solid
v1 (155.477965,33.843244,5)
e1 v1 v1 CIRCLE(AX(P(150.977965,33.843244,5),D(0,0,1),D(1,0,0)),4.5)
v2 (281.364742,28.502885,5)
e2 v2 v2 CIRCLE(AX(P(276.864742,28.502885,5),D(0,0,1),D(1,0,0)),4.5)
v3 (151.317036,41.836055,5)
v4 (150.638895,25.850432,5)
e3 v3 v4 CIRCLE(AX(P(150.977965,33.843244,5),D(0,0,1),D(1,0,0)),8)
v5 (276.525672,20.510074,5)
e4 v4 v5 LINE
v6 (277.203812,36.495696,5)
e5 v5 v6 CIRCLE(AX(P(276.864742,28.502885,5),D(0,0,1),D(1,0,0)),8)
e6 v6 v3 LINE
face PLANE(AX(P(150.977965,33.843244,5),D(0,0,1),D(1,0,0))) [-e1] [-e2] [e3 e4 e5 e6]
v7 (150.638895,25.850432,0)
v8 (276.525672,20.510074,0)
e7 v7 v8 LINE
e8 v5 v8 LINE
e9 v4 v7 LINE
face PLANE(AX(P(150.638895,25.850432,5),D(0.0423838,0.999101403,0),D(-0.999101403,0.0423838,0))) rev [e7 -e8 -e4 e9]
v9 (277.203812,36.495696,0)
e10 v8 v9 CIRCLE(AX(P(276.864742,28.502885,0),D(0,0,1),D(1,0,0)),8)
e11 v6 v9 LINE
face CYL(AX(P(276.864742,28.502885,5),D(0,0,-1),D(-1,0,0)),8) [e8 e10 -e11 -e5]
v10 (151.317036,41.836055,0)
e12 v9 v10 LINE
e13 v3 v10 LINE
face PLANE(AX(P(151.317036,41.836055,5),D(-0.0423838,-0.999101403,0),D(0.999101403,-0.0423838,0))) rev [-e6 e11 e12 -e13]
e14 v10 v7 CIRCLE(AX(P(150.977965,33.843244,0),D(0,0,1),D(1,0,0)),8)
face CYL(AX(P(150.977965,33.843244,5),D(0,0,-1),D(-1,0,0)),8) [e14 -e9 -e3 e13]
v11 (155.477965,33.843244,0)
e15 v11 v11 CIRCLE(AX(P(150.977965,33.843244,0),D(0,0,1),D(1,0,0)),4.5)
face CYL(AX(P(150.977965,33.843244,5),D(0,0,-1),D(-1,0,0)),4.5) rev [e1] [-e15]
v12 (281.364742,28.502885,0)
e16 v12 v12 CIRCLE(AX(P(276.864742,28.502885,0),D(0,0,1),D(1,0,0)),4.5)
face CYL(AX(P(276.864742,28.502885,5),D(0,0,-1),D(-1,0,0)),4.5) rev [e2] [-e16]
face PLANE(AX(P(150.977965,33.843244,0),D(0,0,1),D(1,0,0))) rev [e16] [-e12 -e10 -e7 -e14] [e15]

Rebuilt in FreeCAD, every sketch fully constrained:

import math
import FreeCAD as App
import Part
import Sketcher
Q = App.Units.Quantity

doc = App.newDocument("Part")
body = doc.addObject("PartDesign::Body", "Body")

sketch1 = doc.addObject("Sketcher::SketchObject", "Sketch")
body.addObject(sketch1)
sketch1.AttachmentSupport = (doc.XY_Plane, [""])
sketch1.MapMode = "FlatFace"
sketch1.addGeometry(Part.LineSegment(App.Vector(277.2, 36.5, 0), App.Vector(151.3, 41.8, 0)), False)
sketch1.addGeometry(Part.ArcOfCircle(Part.Circle(App.Vector(151, 33.8, 0), App.Vector(0, 0, 1), 8), math.radians(88), math.radians(268)), False)
sketch1.addGeometry(Part.LineSegment(App.Vector(150.6, 25.9, 0), App.Vector(276.5, 20.5, 0)), False)
sketch1.addGeometry(Part.ArcOfCircle(Part.Circle(App.Vector(276.9, 28.5, 0), App.Vector(0, 0, 1), 8), math.radians(-92), math.radians(88)), False)
sketch1.addGeometry(Part.Circle(App.Vector(276.9, 28.5, 0), App.Vector(0, 0, 1), 4.5), False)
sketch1.addGeometry(Part.Circle(App.Vector(151, 33.8, 0), App.Vector(0, 0, 1), 4.5), False)
sketch1.addConstraint(Sketcher.Constraint("Tangent", 0, 2, 1, 1))
sketch1.addConstraint(Sketcher.Constraint("Tangent", 1, 2, 2, 1))
sketch1.addConstraint(Sketcher.Constraint("Tangent", 2, 2, 3, 1))
sketch1.addConstraint(Sketcher.Constraint("Tangent", 3, 2, 0, 1))
sketch1.addConstraint(Sketcher.Constraint("Coincident", 4, 3, 3, 3))
sketch1.addConstraint(Sketcher.Constraint("Coincident", 5, 3, 1, 3))
sketch1.addConstraint(Sketcher.Constraint("Equal", 1, 3))
sketch1.addConstraint(Sketcher.Constraint("Equal", 4, 5))
sketch1.addConstraint(Sketcher.Constraint("Diameter", 4, Q("9 mm")))
sketch1.addConstraint(Sketcher.Constraint("Radius", 1, Q("8 mm")))
sketch1.addConstraint(Sketcher.Constraint("Distance", 0, Q("126 mm")))
sketch1.addConstraint(Sketcher.Constraint("DistanceX", -1, 1, 2, 2, Q("276.525672 mm")))
sketch1.addConstraint(Sketcher.Constraint("DistanceY", 3, 3, 1, 3, Q("5.340359 mm")))
sketch1.addConstraint(Sketcher.Constraint("DistanceY", -1, 1, 1, 3, Q("33.843244 mm")))
pad1 = doc.addObject("PartDesign::Pad", "Pad")
body.addObject(pad1)
pad1.Profile = sketch1
pad1.Length = 5

doc.recompute()
